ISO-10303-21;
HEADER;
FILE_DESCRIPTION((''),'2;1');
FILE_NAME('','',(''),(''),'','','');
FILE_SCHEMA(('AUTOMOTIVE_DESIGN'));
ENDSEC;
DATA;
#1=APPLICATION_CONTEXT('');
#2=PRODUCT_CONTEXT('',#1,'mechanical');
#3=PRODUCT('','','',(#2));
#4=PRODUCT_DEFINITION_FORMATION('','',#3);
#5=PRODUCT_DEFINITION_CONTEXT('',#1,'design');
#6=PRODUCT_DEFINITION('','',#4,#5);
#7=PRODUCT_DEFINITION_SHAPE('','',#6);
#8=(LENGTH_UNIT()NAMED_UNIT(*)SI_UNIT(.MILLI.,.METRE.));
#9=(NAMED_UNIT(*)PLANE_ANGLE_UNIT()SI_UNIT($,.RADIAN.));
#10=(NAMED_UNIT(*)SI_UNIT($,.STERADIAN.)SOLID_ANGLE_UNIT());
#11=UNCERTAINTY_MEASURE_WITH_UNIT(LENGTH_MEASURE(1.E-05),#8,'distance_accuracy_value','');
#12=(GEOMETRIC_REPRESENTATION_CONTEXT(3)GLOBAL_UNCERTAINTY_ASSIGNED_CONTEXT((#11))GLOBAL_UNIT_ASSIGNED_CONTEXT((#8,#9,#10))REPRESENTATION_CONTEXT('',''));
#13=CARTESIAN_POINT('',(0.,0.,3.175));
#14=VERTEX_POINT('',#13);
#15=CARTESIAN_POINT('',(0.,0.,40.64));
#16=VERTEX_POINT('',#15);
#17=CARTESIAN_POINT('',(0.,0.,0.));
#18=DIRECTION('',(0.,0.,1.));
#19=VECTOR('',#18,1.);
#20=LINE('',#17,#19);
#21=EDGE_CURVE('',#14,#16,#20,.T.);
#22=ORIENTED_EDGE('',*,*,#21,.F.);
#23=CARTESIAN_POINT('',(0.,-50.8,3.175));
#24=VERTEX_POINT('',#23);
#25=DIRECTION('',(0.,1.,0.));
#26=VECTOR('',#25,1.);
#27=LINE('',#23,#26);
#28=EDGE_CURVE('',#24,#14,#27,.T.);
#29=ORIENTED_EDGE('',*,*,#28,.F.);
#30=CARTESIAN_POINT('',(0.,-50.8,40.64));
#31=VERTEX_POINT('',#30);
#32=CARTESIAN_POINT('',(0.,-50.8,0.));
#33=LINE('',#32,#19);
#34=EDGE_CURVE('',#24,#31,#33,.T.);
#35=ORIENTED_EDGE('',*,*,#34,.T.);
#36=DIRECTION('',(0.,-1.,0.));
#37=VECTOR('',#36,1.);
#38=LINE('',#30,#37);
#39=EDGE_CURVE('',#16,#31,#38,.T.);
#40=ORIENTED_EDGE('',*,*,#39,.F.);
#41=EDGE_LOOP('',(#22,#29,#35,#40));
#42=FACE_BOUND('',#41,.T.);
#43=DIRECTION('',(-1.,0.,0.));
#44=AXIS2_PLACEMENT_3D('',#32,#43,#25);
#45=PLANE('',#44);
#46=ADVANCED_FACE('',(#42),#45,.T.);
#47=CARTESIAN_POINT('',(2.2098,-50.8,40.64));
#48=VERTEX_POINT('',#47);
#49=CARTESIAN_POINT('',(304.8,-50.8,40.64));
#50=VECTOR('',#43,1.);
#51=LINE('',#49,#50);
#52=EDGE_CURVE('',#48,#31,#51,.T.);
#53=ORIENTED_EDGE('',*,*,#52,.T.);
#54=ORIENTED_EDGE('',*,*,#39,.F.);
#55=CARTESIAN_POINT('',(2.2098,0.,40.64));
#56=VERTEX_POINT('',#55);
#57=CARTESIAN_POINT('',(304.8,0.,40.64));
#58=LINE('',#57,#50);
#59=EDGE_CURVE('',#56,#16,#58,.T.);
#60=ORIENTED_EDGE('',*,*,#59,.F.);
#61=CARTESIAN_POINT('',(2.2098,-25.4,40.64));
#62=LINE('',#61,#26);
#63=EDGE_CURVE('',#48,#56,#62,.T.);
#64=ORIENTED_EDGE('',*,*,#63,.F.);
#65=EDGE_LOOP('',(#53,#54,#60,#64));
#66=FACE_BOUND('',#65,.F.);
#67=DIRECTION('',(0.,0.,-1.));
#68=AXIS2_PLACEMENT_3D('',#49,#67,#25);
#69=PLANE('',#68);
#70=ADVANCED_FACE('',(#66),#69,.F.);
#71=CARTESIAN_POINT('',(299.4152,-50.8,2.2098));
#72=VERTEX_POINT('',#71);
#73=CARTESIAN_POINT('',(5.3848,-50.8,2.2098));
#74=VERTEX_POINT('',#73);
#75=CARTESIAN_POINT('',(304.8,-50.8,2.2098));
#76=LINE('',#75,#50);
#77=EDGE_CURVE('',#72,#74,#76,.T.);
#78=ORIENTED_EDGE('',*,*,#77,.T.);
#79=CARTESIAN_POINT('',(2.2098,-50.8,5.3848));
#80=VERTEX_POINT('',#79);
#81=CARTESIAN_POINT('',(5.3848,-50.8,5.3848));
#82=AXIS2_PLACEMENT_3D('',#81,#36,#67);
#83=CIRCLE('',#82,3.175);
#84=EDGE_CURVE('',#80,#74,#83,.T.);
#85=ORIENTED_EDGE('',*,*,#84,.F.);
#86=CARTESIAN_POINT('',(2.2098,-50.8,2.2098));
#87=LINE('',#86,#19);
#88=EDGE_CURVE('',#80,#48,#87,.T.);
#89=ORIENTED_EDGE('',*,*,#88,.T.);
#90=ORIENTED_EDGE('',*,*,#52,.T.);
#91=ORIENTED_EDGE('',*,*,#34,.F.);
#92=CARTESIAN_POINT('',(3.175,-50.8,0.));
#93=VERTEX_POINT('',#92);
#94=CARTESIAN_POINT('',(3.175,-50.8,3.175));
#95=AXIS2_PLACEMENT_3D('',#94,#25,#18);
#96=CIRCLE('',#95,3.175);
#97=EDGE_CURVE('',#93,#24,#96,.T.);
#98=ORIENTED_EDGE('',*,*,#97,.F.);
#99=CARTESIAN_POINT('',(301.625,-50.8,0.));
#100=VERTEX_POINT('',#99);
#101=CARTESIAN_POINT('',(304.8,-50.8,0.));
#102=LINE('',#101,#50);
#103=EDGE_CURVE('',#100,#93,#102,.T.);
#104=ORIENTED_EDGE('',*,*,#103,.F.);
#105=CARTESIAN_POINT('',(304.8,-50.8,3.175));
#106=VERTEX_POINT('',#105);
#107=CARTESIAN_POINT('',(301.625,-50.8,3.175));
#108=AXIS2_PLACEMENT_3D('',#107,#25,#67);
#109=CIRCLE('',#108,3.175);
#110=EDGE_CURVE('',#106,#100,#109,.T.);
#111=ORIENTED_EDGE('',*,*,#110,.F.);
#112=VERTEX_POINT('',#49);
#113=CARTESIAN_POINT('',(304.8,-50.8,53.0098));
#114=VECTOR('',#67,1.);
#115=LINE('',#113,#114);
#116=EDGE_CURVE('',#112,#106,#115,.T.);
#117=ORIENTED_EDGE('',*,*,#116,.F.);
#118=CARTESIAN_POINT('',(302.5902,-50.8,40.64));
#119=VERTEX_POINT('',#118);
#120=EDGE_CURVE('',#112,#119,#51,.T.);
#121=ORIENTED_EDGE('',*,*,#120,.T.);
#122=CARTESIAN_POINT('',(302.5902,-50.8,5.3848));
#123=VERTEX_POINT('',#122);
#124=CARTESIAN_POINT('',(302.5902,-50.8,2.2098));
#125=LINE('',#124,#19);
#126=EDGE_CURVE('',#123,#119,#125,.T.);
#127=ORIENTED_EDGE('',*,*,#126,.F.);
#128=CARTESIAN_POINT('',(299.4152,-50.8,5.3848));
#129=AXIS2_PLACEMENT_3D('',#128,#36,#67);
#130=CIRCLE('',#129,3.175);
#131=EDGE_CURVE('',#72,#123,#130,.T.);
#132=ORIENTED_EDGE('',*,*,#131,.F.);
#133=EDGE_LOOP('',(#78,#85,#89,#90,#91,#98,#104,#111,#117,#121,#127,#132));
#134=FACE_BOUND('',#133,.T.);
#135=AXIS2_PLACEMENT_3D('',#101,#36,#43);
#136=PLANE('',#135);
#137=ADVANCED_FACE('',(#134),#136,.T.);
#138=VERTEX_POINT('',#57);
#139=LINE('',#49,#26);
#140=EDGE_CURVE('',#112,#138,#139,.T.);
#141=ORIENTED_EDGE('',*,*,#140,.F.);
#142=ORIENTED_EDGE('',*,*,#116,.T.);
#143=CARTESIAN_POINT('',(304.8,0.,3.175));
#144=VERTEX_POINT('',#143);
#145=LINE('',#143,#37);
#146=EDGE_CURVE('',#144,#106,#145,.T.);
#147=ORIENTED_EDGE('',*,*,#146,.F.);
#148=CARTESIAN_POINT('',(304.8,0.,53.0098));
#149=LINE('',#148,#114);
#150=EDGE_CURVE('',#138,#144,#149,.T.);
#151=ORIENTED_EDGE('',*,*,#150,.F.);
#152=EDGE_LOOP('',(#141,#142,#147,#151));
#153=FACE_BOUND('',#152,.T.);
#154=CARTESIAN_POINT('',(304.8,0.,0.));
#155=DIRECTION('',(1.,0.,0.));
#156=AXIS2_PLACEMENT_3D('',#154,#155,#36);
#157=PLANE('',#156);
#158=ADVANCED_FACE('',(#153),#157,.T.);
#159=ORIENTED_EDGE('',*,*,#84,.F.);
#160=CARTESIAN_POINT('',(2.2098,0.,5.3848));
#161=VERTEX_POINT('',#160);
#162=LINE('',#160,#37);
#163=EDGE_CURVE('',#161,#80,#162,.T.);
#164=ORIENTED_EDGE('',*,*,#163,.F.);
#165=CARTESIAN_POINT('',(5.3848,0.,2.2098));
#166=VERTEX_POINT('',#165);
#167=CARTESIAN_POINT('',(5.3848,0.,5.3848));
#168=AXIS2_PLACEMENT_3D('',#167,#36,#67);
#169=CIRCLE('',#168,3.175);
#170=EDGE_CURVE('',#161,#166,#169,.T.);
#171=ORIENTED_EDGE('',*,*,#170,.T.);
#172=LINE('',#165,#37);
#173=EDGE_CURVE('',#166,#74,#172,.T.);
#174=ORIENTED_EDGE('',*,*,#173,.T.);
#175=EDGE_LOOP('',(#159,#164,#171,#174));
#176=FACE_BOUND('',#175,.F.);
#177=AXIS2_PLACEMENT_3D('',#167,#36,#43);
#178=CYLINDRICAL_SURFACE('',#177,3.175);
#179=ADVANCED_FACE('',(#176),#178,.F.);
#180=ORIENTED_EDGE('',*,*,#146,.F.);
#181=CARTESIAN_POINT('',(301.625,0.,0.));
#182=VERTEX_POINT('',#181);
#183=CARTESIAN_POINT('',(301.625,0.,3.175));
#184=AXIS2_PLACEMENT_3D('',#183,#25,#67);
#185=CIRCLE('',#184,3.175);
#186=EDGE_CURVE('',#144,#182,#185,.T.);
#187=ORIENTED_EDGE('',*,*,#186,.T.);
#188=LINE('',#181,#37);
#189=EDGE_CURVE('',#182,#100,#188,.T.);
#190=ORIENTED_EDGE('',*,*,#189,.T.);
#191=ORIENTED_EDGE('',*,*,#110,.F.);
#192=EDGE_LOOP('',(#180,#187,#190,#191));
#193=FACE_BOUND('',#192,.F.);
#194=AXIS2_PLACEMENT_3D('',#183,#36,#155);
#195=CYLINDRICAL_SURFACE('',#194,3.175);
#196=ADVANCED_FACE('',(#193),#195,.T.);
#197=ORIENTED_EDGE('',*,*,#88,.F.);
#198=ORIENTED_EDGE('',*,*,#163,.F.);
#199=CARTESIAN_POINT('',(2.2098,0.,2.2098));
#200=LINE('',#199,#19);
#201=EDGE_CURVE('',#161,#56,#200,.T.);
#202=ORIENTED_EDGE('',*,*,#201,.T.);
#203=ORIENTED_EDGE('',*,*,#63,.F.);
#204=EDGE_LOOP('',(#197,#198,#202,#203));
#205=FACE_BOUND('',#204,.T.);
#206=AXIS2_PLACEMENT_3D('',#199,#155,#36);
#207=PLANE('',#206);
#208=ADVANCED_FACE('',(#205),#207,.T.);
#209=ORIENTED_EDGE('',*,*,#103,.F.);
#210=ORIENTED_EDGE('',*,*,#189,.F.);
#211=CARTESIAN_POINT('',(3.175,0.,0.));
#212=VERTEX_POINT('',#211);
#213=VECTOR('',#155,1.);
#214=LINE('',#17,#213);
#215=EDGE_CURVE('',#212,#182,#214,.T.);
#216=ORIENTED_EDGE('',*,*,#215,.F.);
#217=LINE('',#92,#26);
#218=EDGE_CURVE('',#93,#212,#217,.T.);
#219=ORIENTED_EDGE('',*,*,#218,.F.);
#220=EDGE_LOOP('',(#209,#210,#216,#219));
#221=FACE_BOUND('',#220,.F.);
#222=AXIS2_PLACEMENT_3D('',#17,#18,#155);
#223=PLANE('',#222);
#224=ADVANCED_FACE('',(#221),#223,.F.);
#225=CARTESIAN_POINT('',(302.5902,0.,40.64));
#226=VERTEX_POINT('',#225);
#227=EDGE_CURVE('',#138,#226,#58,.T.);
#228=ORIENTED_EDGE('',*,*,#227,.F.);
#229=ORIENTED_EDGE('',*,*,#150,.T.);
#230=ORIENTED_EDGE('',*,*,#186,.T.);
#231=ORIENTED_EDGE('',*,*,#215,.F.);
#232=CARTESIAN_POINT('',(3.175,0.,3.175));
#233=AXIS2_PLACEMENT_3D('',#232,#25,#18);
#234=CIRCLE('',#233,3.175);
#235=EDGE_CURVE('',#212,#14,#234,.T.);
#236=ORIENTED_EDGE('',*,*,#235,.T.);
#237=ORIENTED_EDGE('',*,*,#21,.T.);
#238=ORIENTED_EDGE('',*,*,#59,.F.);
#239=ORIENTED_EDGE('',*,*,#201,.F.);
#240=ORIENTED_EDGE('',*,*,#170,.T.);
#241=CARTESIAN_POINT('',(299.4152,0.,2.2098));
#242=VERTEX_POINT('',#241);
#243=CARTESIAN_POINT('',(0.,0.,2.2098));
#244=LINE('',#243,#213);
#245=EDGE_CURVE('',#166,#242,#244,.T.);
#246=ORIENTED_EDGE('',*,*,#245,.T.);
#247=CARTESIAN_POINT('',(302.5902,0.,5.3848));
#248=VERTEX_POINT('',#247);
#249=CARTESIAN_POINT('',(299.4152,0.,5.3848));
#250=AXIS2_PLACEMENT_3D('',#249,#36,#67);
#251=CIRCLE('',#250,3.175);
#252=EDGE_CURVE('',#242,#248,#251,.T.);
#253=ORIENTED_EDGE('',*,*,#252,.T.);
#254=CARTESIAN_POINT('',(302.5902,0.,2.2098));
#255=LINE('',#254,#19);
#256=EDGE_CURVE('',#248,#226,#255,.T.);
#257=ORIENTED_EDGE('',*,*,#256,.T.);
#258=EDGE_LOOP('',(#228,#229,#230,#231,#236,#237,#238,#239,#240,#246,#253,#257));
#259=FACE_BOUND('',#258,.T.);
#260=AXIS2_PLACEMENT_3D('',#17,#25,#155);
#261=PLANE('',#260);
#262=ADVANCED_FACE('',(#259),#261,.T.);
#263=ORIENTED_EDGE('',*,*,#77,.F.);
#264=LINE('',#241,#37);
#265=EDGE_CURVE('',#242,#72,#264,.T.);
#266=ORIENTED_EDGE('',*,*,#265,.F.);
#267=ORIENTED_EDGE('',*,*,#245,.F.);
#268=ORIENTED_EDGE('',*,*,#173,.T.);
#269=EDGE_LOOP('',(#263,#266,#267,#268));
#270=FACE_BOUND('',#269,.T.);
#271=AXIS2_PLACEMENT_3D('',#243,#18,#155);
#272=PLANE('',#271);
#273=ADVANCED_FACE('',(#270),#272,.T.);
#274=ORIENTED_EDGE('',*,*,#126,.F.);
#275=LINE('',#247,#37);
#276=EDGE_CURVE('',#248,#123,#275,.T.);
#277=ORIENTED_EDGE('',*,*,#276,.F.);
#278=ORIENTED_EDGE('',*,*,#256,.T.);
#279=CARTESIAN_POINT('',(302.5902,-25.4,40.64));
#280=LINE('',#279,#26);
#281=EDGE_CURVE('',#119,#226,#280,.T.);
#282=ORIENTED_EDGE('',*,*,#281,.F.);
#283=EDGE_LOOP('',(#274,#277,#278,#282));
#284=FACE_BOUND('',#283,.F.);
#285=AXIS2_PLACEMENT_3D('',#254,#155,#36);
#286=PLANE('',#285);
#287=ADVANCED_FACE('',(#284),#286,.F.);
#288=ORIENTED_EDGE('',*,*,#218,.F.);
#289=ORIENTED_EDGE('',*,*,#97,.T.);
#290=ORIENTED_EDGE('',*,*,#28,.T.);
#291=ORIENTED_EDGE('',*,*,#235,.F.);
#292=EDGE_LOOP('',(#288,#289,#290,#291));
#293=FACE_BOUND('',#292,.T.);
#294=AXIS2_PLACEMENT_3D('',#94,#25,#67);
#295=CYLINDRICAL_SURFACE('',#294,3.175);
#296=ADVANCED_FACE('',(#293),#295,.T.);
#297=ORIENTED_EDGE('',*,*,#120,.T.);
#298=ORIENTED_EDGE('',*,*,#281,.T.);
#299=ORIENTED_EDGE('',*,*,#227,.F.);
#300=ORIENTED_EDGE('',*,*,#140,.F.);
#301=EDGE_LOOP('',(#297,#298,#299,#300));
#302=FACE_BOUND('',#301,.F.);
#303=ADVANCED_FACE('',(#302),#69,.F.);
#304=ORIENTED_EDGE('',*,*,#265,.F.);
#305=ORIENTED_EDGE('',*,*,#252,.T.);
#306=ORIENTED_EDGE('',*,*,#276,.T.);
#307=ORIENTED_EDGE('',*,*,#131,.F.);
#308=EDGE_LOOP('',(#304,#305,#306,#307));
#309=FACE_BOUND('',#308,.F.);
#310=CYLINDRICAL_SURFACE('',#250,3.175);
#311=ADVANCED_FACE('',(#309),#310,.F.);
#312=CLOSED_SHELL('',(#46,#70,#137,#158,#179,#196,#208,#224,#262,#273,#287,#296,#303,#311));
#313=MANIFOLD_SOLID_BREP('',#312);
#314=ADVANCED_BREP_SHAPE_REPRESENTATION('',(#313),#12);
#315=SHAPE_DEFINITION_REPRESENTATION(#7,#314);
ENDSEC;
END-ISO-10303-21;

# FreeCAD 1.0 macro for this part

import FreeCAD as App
import Part
import Sketcher
Q = App.Units.Quantity


def edges_at(feature, points):
    """Names of the edges that pass closest to the given points."""
    edges = feature.Shape.Edges
    near = lambda p: min(range(len(edges)), key=lambda i: edges[i].distToShape(Part.Vertex(*p))[0])
    return sorted({f"Edge{near(p) + 1}" for p in points})

doc = App.newDocument("Part")
body = doc.addObject("PartDesign::Body", "Body")

# Sketch on XY plane
sketch1 = body.newObject("Sketcher::SketchObject", "Sketch")
sketch1.AttachmentSupport = (doc.getObject("XY_Plane"), [""])
sketch1.MapMode = "FlatFace"
sketch1.addGeometry([
    Part.LineSegment(App.Vector(304.8, 0, 0), App.Vector(0, 0, 0)),
    Part.LineSegment(App.Vector(0, 0, 0), App.Vector(0, -50.8, 0)),
    Part.LineSegment(App.Vector(0, -50.8, 0), App.Vector(304.8, -50.8, 0)),
    Part.LineSegment(App.Vector(304.8, -50.8, 0), App.Vector(304.8, 0, 0)),
], False)
sketch1.addConstraint([
    Sketcher.Constraint("Coincident", 0, 2, 1, 1),
    Sketcher.Constraint("Coincident", 1, 2, 2, 1),
    Sketcher.Constraint("Coincident", 2, 2, 3, 1),
    Sketcher.Constraint("Coincident", 3, 2, 0, 1),
    Sketcher.Constraint("Horizontal", 0),
    Sketcher.Constraint("Vertical", 1),
    Sketcher.Constraint("Horizontal", 2),
    Sketcher.Constraint("Vertical", 3),
    Sketcher.Constraint("Coincident", 0, 2, -1, 1),
    Sketcher.Constraint("DistanceX", 0, 2, 0, 1, Q("12 in")),
    Sketcher.Constraint("DistanceY", 1, 2, 1, 1, Q("2 in")),
])
pad1 = body.newObject("PartDesign::Pad", "Pad")
pad1.Profile = sketch1
pad1.Length = Q("0.087 in")

# Sketch on XY plane
sketch2 = body.newObject("Sketcher::SketchObject", "Sketch001")
sketch2.AttachmentSupport = (doc.getObject("XY_Plane"), [""])
sketch2.MapMode = "FlatFace"
sketch2.AttachmentOffset = App.Placement(App.Vector(0, 0, 0.087 * 25.4), App.Rotation())
sketch2.addGeometry([
    Part.LineSegment(App.Vector(0, 0, 0), App.Vector(0, -50.8, 0)),  # 0
    Part.LineSegment(App.Vector(0, -50.8, 0), App.Vector(2.2098, -50.8, 0)),  # 1
    Part.LineSegment(App.Vector(2.2098, -50.8, 0), App.Vector(2.2098, 0, 0)),  # 2
    Part.LineSegment(App.Vector(2.2098, 0, 0), App.Vector(0, 0, 0)),  # 3
    Part.LineSegment(App.Vector(302.5902, 0, 0), App.Vector(302.5902, -50.8, 0)),  # 4
    Part.LineSegment(App.Vector(302.5902, -50.8, 0), App.Vector(304.8, -50.8, 0)),  # 5
    Part.LineSegment(App.Vector(304.8, -50.8, 0), App.Vector(304.8, 0, 0)),  # 6
    Part.LineSegment(App.Vector(304.8, 0, 0), App.Vector(302.5902, 0, 0)),  # 7
], False)
sketch2.addConstraint([
    Sketcher.Constraint("Coincident", 0, 2, 1, 1),
    Sketcher.Constraint("Coincident", 1, 2, 2, 1),
    Sketcher.Constraint("Coincident", 2, 2, 3, 1),
    Sketcher.Constraint("Coincident", 3, 2, 0, 1),
    Sketcher.Constraint("Coincident", 4, 2, 5, 1),
    Sketcher.Constraint("Coincident", 5, 2, 6, 1),
    Sketcher.Constraint("Coincident", 6, 2, 7, 1),
    Sketcher.Constraint("Coincident", 7, 2, 4, 1),
    Sketcher.Constraint("Vertical", 0),
    Sketcher.Constraint("Horizontal", 1),
    Sketcher.Constraint("Vertical", 2),
    Sketcher.Constraint("Horizontal", 3),
    Sketcher.Constraint("Vertical", 4),
    Sketcher.Constraint("Horizontal", 5),
    Sketcher.Constraint("Vertical", 6),
    Sketcher.Constraint("Horizontal", 7),
    Sketcher.Constraint("Coincident", 3, 2, -1, 1),
    Sketcher.Constraint("PointOnObject", 6, 2, -1),
    Sketcher.Constraint("Horizontal", 1, 2, 4, 2),
    Sketcher.Constraint("Equal", 3, 5),
    Sketcher.Constraint("DistanceX", 1, 1, 1, 2, Q("0.087 in")),
    Sketcher.Constraint("DistanceY", 0, 2, 0, 1, Q("2 in")),
    Sketcher.Constraint("DistanceX", -1, 1, 5, 2, Q("12 in")),
])
pad2 = body.newObject("PartDesign::Pad", "Pad001")
pad2.Profile = sketch2
pad2.Length = Q("2 in")
doc.recompute()

fillet = body.newObject("PartDesign::Fillet", "Fillet")
fillet.Base = (pad2, edges_at(pad2, [(304.8, -25.4, 0)]))
fillet.Radius = Q("0.125 in")
doc.recompute()

fillet2 = body.newObject("PartDesign::Fillet", "Fillet001")
fillet2.Base = (fillet, edges_at(fillet, [(0, -25.4, 0)]))
fillet2.Radius = Q("0.125 in")
doc.recompute()

fillet3 = body.newObject("PartDesign::Fillet", "Fillet002")
fillet3.Base = (fillet2, edges_at(fillet2, [(2.21, -25.4, 2.21)]))
fillet3.Radius = Q("0.125 in")
doc.recompute()

fillet4 = body.newObject("PartDesign::Fillet", "Fillet003")
fillet4.Base = (fillet3, edges_at(fillet3, [(302.59, -25.4, 2.21)]))
fillet4.Radius = Q("0.125 in")

# Sketch on YZ plane
sketch3 = body.newObject("Sketcher::SketchObject", "Sketch002")
sketch3.AttachmentSupport = (doc.getObject("YZ_Plane"), [""])
sketch3.MapMode = "FlatFace"
sketch3.AttachmentOffset = App.Placement(App.Vector(0, 0, 12 * 25.4), App.Rotation())
sketch3.addGeometry([
    Part.LineSegment(App.Vector(-50.8, 73.2029, 0), App.Vector(-50.8, 40.64, 0)),
    Part.LineSegment(App.Vector(-50.8, 40.64, 0), App.Vector(15.0948, 40.64, 0)),
    Part.LineSegment(App.Vector(15.0948, 40.64, 0), App.Vector(15.0948, 73.2029, 0)),
    Part.LineSegment(App.Vector(15.0948, 73.2029, 0), App.Vector(-50.8, 73.2029, 0)),
], False)
sketch3.addConstraint([
    Sketcher.Constraint("Coincident", 0, 2, 1, 1),
    Sketcher.Constraint("Coincident", 1, 2, 2, 1),
    Sketcher.Constraint("Coincident", 2, 2, 3, 1),
    Sketcher.Constraint("Coincident", 3, 2, 0, 1),
    Sketcher.Constraint("Vertical", 0),
    Sketcher.Constraint("Horizontal", 1),
    Sketcher.Constraint("Vertical", 2),
    Sketcher.Constraint("Horizontal", 3),
    Sketcher.Constraint("DistanceX", 0, 2, -1, 1, Q("2 in")),
    Sketcher.Constraint("DistanceY", -1, 1, 0, 2, Q("1.6 in")),
    Sketcher.Constraint("DistanceY", 0, 2, 0, 1, Q("1.282 in")),
    Sketcher.Constraint("DistanceX", 1, 1, 1, 2, 65.8948),
])
pocket1 = body.newObject("PartDesign::Pocket", "Pocket")
pocket1.Profile = sketch3
pocket1.Type = "ThroughAll"

doc.recompute()
